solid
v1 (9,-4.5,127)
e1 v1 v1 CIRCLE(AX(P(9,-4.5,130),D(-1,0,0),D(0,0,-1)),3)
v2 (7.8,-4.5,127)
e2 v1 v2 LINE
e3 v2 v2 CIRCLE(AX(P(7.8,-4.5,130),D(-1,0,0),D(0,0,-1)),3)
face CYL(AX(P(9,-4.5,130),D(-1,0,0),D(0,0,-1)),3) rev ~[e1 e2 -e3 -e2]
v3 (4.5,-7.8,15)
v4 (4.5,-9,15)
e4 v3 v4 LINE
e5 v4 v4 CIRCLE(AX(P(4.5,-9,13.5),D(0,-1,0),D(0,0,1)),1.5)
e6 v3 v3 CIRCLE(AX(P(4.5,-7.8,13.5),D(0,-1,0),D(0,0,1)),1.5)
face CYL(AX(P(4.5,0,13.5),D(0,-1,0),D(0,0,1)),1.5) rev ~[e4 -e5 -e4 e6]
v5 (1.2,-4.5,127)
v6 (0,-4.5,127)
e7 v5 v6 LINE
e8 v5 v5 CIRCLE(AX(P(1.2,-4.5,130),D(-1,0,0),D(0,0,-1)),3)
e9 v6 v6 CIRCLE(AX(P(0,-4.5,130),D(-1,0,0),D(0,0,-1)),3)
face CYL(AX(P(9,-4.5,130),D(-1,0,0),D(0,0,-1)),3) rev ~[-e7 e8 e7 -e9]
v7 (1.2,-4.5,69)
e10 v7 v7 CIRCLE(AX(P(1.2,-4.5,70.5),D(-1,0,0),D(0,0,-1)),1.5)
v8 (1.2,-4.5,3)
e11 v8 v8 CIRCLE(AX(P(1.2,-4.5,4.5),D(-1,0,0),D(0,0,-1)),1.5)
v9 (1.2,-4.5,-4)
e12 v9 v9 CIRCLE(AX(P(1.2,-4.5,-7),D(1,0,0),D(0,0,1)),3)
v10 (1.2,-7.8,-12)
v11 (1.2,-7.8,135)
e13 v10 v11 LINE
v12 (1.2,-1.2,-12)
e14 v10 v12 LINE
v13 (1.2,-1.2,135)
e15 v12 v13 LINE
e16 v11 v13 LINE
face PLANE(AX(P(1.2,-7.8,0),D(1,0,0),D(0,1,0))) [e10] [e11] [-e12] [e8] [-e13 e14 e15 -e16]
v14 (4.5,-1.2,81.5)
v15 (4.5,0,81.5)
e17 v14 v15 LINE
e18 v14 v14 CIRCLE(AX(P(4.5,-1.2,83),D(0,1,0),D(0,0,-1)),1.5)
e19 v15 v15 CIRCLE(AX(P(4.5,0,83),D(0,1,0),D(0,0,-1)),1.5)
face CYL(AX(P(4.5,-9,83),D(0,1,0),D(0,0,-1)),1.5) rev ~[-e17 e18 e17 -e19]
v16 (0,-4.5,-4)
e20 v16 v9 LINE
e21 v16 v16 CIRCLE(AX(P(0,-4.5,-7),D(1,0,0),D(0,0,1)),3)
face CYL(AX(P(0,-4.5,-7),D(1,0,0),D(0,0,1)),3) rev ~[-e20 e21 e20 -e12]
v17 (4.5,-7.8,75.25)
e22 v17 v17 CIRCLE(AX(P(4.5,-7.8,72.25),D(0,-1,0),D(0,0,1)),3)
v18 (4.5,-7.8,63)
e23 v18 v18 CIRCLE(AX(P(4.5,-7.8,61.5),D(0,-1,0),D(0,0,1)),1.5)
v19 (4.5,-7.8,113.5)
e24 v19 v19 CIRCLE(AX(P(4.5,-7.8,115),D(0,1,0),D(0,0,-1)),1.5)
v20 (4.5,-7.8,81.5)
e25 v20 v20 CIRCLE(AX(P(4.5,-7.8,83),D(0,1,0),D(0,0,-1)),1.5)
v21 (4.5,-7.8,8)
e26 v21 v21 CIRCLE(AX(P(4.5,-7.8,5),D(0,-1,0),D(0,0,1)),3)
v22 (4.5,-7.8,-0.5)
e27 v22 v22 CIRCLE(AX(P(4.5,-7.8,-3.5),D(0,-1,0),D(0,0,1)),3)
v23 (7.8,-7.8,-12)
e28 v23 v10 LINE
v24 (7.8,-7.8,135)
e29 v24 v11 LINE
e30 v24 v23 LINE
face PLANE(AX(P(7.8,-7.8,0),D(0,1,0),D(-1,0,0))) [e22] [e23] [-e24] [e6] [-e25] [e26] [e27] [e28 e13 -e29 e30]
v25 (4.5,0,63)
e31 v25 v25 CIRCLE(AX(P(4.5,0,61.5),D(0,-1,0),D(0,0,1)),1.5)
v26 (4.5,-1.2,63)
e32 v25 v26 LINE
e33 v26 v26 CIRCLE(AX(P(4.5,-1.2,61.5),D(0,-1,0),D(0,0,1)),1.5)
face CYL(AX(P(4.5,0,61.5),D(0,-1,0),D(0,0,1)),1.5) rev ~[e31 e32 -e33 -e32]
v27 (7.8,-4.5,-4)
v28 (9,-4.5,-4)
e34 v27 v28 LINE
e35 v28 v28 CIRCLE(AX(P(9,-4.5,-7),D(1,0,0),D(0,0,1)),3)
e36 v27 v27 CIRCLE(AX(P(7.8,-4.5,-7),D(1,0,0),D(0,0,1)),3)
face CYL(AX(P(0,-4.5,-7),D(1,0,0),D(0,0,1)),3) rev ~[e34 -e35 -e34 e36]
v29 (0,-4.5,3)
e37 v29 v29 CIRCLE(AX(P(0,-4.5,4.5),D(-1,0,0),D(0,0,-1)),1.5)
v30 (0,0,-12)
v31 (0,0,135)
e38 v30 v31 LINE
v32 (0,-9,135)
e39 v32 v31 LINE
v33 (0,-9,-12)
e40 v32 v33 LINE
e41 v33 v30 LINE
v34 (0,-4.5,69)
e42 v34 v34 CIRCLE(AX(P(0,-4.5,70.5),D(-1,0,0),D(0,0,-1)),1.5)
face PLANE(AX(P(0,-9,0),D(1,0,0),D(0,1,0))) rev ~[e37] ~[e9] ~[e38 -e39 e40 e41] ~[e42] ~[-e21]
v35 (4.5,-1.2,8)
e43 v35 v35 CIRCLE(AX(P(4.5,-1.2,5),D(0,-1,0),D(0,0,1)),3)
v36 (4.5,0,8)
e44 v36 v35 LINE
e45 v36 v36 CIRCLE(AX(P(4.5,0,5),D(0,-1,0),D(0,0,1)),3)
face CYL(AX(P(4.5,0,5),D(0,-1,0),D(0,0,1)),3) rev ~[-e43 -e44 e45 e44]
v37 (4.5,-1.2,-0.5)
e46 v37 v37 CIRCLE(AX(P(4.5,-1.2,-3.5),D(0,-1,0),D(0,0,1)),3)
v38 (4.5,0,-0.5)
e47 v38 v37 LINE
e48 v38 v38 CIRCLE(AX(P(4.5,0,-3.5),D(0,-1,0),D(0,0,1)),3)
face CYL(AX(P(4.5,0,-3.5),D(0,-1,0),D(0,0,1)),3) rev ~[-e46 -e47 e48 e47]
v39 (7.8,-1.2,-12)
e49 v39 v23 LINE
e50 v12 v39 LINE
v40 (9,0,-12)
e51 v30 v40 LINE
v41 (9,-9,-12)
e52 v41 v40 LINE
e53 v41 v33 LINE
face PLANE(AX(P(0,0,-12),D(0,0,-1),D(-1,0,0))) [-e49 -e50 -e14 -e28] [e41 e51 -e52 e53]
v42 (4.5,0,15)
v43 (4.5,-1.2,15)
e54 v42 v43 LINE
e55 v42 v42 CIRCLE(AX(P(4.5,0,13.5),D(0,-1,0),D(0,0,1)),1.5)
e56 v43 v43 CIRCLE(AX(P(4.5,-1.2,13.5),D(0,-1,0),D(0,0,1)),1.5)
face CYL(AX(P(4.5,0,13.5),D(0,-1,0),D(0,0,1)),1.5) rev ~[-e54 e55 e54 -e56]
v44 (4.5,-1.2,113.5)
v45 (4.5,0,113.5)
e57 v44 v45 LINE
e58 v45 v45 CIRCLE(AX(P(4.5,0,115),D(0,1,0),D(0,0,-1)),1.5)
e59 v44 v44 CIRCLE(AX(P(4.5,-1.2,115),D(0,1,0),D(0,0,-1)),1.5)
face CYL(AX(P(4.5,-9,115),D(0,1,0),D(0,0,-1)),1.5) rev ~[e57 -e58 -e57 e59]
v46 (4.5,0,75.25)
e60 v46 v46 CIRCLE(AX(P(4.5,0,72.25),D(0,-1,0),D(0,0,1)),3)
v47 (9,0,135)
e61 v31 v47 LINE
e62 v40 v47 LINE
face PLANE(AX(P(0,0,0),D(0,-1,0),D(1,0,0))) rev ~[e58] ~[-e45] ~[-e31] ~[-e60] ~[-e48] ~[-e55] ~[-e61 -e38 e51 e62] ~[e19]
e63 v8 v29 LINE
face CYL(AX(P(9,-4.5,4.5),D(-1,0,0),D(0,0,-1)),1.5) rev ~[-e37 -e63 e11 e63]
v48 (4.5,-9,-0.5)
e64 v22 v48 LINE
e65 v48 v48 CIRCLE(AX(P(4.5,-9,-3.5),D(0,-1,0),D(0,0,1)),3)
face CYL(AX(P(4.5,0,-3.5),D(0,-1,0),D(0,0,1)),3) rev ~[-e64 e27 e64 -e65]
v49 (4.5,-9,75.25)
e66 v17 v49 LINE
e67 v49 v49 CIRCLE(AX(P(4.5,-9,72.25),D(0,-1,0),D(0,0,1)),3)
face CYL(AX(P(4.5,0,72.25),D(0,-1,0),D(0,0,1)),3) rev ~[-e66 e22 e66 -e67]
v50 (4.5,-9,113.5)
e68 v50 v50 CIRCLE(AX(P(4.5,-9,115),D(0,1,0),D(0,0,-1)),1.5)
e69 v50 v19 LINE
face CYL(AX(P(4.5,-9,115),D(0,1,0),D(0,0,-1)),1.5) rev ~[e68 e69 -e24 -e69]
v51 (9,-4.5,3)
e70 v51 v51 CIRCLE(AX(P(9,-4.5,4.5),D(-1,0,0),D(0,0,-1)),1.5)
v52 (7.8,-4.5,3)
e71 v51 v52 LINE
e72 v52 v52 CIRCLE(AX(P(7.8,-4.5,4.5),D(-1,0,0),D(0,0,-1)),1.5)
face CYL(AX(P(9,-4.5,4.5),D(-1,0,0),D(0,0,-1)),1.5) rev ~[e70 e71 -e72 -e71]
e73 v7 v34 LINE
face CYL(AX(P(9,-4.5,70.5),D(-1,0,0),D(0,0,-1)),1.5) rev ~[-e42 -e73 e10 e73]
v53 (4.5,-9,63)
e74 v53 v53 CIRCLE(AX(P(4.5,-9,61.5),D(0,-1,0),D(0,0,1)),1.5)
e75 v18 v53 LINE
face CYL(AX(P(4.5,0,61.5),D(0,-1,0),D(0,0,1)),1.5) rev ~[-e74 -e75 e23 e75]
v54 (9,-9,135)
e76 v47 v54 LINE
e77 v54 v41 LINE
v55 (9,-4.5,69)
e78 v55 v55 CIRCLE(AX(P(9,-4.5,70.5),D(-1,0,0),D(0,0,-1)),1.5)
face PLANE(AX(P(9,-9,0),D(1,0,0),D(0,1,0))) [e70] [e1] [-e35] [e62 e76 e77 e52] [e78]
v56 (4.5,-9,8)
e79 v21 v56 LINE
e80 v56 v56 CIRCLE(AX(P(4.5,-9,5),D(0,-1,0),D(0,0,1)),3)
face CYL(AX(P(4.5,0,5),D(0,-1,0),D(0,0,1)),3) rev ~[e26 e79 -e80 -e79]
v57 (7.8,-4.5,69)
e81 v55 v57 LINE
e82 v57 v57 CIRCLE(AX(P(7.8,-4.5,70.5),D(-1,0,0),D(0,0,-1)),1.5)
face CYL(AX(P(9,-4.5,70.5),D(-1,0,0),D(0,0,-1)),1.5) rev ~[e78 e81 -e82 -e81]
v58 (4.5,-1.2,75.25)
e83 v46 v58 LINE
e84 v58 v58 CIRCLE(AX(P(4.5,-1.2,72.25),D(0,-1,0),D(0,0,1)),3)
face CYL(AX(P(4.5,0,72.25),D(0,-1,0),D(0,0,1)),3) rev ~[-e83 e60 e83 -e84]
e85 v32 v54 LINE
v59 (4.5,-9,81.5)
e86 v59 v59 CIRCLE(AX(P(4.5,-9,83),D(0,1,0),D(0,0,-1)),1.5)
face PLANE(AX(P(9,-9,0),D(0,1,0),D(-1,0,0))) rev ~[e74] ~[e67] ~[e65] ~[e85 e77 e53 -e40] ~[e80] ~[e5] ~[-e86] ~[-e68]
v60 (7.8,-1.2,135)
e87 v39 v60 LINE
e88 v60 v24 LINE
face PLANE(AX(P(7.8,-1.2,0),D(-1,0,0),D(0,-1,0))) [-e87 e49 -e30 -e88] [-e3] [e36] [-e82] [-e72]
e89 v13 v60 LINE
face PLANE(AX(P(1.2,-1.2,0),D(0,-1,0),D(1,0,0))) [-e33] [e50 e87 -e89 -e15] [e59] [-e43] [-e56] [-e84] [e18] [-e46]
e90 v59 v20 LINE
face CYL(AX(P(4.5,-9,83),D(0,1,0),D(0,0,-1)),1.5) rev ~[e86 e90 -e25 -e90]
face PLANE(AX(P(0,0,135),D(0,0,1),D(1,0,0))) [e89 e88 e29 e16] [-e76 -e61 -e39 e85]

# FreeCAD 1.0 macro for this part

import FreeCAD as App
import Part
import Sketcher
Q = App.Units.Quantity

doc = App.newDocument("Part")
body = doc.addObject("PartDesign::Body", "Body")

sketch1 = body.newObject("Sketcher::SketchObject", "Sketch")
sketch1.AttachmentSupport = (doc.getObject("XY_Plane"), [""])
sketch1.MapMode = "FlatFace"
sketch1.addGeometry([
    Part.LineSegment(App.Vector(9, 0, 0), App.Vector(0, 0, 0)),
    Part.LineSegment(App.Vector(0, 0, 0), App.Vector(0, -9, 0)),
    Part.LineSegment(App.Vector(0, -9, 0), App.Vector(9, -9, 0)),
    Part.LineSegment(App.Vector(9, -9, 0), App.Vector(9, 0, 0)),
    Part.LineSegment(App.Vector(1, -8, 0), App.Vector(1, -1, 0)),
    Part.LineSegment(App.Vector(1, -1, 0), App.Vector(8, -1, 0)),
    Part.LineSegment(App.Vector(8, -1, 0), App.Vector(8, -8, 0)),
    Part.LineSegment(App.Vector(8, -8, 0), App.Vector(1, -8, 0)),
], False)
sketch1.addConstraint([
    Sketcher.Constraint("Coincident", 0, 2, 1, 1),
    Sketcher.Constraint("Coincident", 1, 2, 2, 1),
    Sketcher.Constraint("Coincident", 2, 2, 3, 1),
    Sketcher.Constraint("Coincident", 3, 2, 0, 1),
    Sketcher.Constraint("Coincident", 4, 2, 5, 1),
    Sketcher.Constraint("Coincident", 5, 2, 6, 1),
    Sketcher.Constraint("Coincident", 6, 2, 7, 1),
    Sketcher.Constraint("Coincident", 7, 2, 4, 1),
    Sketcher.Constraint("Horizontal", 0),
    Sketcher.Constraint("Vertical", 1),
    Sketcher.Constraint("Horizontal", 2),
    Sketcher.Constraint("Vertical", 3),
    Sketcher.Constraint("Vertical", 4),
    Sketcher.Constraint("Horizontal", 5),
    Sketcher.Constraint("Vertical", 6),
    Sketcher.Constraint("Horizontal", 7),
    Sketcher.Constraint("Coincident", 0, 2, -1, 1),
    Sketcher.Constraint("Equal", 2, 1),
    Sketcher.Constraint("Equal", 7, 4),
    Sketcher.Constraint("DistanceX", 0, 2, 0, 1, Q("9 mm")),
    Sketcher.Constraint("DistanceX", 5, 1, 5, 2, Q("6.6 mm")),
    Sketcher.Constraint("DistanceX", -1, 1, 4, 2, Q("1.2 mm")),
    Sketcher.Constraint("DistanceY", 4, 2, -1, 1, Q("1.2 mm")),
])
pad1 = body.newObject("PartDesign::Pad", "Pad")
pad1.Profile = sketch1
pad1.Length = 75

sketch2 = body.newObject("Sketcher::SketchObject", "Sketch001")
sketch2.AttachmentSupport = (doc.getObject("YZ_Plane"), [""])
sketch2.MapMode = "FlatFace"
sketch2.AttachmentOffset = App.Placement(App.Vector(0, 0, 9), App.Rotation())
sketch2.addGeometry([
    Part.Circle(App.Vector(-4.5, 70.5, 0), App.Vector(0, 0, 1), 1.5),
    Part.Circle(App.Vector(-4.5, 4.5, 0), App.Vector(0, 0, 1), 1.5),
], False)
sketch2.addConstraint([
    Sketcher.Constraint("Equal", 0, 1),
    Sketcher.Constraint("Vertical", 0, 3, 1, 3),
    Sketcher.Constraint("Diameter", 0, Q("3 mm")),
    Sketcher.Constraint("DistanceY", 1, 3, 0, 3, Q("66 mm")),
    Sketcher.Constraint("DistanceX", 0, 3, -1, 1, Q("4.5 mm")),
    Sketcher.Constraint("DistanceY", -1, 1, 0, 3, Q("70.5 mm")),
])
doc.recompute()
hole = body.newObject("PartDesign::Hole", "Hole")
hole.Profile = sketch2
hole.ThreadType = "None"
hole.Diameter = 3
hole.DepthType = "ThroughAll"

sketch3 = body.newObject("Sketcher::SketchObject", "Sketch002")
sketch3.AttachmentSupport = (doc.getObject("XZ_Plane"), [""])
sketch3.MapMode = "FlatFace"
sketch3.addGeometry([
    Part.Circle(App.Vector(4.5, 61.5, 0), App.Vector(0, 0, 1), 1.5),
    Part.Circle(App.Vector(4.5, 13.5, 0), App.Vector(0, 0, 1), 1.5),
], False)
sketch3.addConstraint([
    Sketcher.Constraint("Equal", 0, 1),
    Sketcher.Constraint("Vertical", 0, 3, 1, 3),
    Sketcher.Constraint("Diameter", 0, Q("3 mm")),
    Sketcher.Constraint("DistanceY", 1, 3, 0, 3, Q("48 mm")),
    Sketcher.Constraint("DistanceX", -1, 1, 0, 3, Q("4.5 mm")),
    Sketcher.Constraint("DistanceY", -1, 1, 0, 3, Q("61.5 mm")),
])
doc.recompute()
hole2 = body.newObject("PartDesign::Hole", "Hole001")
hole2.Profile = sketch3
hole2.ThreadType = "None"
hole2.Diameter = 3
hole2.DepthType = "ThroughAll"
hole2.Reversed = True

sketch4 = body.newObject("Sketcher::SketchObject", "Sketch003")
sketch4.AttachmentSupport = (doc.getObject("XY_Plane"), [""])
sketch4.MapMode = "FlatFace"
sketch4.AttachmentOffset = App.Placement(App.Vector(0, 0, 75), App.Rotation())
sketch4.addGeometry([
    Part.LineSegment(App.Vector(0, 0, 0), App.Vector(0, -9, 0)),
    Part.LineSegment(App.Vector(0, -9, 0), App.Vector(9, -9, 0)),
    Part.LineSegment(App.Vector(9, -9, 0), App.Vector(9, 0, 0)),
    Part.LineSegment(App.Vector(9, 0, 0), App.Vector(0, 0, 0)),
    Part.LineSegment(App.Vector(1, -8, 0), App.Vector(1, -1, 0)),
    Part.LineSegment(App.Vector(1, -1, 0), App.Vector(8, -1, 0)),
    Part.LineSegment(App.Vector(8, -1, 0), App.Vector(8, -8, 0)),
    Part.LineSegment(App.Vector(8, -8, 0), App.Vector(1, -8, 0)),
], False)
sketch4.addConstraint([
    Sketcher.Constraint("Coincident", 0, 2, 1, 1),
    Sketcher.Constraint("Coincident", 1, 2, 2, 1),
    Sketcher.Constraint("Coincident", 2, 2, 3, 1),
    Sketcher.Constraint("Coincident", 3, 2, 0, 1),
    Sketcher.Constraint("Coincident", 4, 2, 5, 1),
    Sketcher.Constraint("Coincident", 5, 2, 6, 1),
    Sketcher.Constraint("Coincident", 6, 2, 7, 1),
    Sketcher.Constraint("Coincident", 7, 2, 4, 1),
    Sketcher.Constraint("Vertical", 0),
    Sketcher.Constraint("Horizontal", 1),
    Sketcher.Constraint("Vertical", 2),
    Sketcher.Constraint("Horizontal", 3),
    Sketcher.Constraint("Vertical", 4),
    Sketcher.Constraint("Horizontal", 5),
    Sketcher.Constraint("Vertical", 6),
    Sketcher.Constraint("Horizontal", 7),
    Sketcher.Constraint("Coincident", 3, 2, -1, 1),
    Sketcher.Constraint("Equal", 3, 0),
    Sketcher.Constraint("Equal", 7, 4),
    Sketcher.Constraint("DistanceX", 1, 1, 1, 2, Q("9 mm")),
    Sketcher.Constraint("DistanceX", 5, 1, 5, 2, Q("6.6 mm")),
    Sketcher.Constraint("DistanceX", -1, 1, 4, 2, Q("1.2 mm")),
    Sketcher.Constraint("DistanceY", 4, 2, -1, 1, Q("1.2 mm")),
])
pad2 = body.newObject("PartDesign::Pad", "Pad001")
pad2.Profile = sketch4
pad2.Length = 60

sketch5 = body.newObject("Sketcher::SketchObject", "Sketch004")
sketch5.AttachmentSupport = (doc.getObject("YZ_Plane"), [""])
sketch5.MapMode = "FlatFace"
sketch5.AttachmentOffset = App.Placement(App.Vector(0, 0, 9), App.Rotation())
sketch5.addGeometry(Part.Circle(App.Vector(-4.5, 130, 0), App.Vector(0, 0, 1), 3), False)
sketch5.addConstraint([
    Sketcher.Constraint("Diameter", 0, Q("6 mm")),
    Sketcher.Constraint("DistanceY", -1, 1, 0, 3, Q("130 mm")),
    Sketcher.Constraint("DistanceX", 0, 3, -1, 1, Q("4.5 mm")),
])
doc.recompute()
hole3 = body.newObject("PartDesign::Hole", "Hole002")
hole3.Profile = sketch5
hole3.ThreadType = "None"
hole3.Diameter = 6
hole3.DepthType = "ThroughAll"

sketch6 = body.newObject("Sketcher::SketchObject", "Sketch005")
sketch6.AttachmentSupport = (doc.getObject("XY_Plane"), [""])
sketch6.MapMode = "FlatFace"
sketch6.addGeometry([
    Part.LineSegment(App.Vector(9, 0, 0), App.Vector(9, -9, 0)),
    Part.LineSegment(App.Vector(9, -9, 0), App.Vector(0, -9, 0)),
    Part.LineSegment(App.Vector(0, -9, 0), App.Vector(0, 0, 0)),
    Part.LineSegment(App.Vector(0, 0, 0), App.Vector(9, 0, 0)),
    Part.LineSegment(App.Vector(1, -8, 0), App.Vector(8, -8, 0)),
    Part.LineSegment(App.Vector(8, -8, 0), App.Vector(8, -1, 0)),
    Part.LineSegment(App.Vector(8, -1, 0), App.Vector(1, -1, 0)),
    Part.LineSegment(App.Vector(1, -1, 0), App.Vector(1, -8, 0)),
], False)
sketch6.addConstraint([
    Sketcher.Constraint("Coincident", 0, 2, 1, 1),
    Sketcher.Constraint("Coincident", 1, 2, 2, 1),
    Sketcher.Constraint("Coincident", 2, 2, 3, 1),
    Sketcher.Constraint("Coincident", 3, 2, 0, 1),
    Sketcher.Constraint("Coincident", 4, 2, 5, 1),
    Sketcher.Constraint("Coincident", 5, 2, 6, 1),
    Sketcher.Constraint("Coincident", 6, 2, 7, 1),
    Sketcher.Constraint("Coincident", 7, 2, 4, 1),
    Sketcher.Constraint("Vertical", 0),
    Sketcher.Constraint("Horizontal", 1),
    Sketcher.Constraint("Vertical", 2),
    Sketcher.Constraint("Horizontal", 3),
    Sketcher.Constraint("Horizontal", 4),
    Sketcher.Constraint("Vertical", 5),
    Sketcher.Constraint("Horizontal", 6),
    Sketcher.Constraint("Vertical", 7),
    Sketcher.Constraint("Coincident", 2, 2, -1, 1),
    Sketcher.Constraint("Equal", 3, 0),
    Sketcher.Constraint("Equal", 6, 5),
    Sketcher.Constraint("DistanceX", 1, 2, 1, 1, Q("9 mm")),
    Sketcher.Constraint("DistanceX", 4, 1, 4, 2, Q("6.6 mm")),
    Sketcher.Constraint("DistanceX", -1, 1, 4, 2, Q("7.8 mm")),
    Sketcher.Constraint("DistanceY", 4, 2, -1, 1, Q("7.8 mm")),
])
pad3 = body.newObject("PartDesign::Pad", "Pad002")
pad3.Profile = sketch6
pad3.Length = 12
pad3.Reversed = True

sketch7 = body.newObject("Sketcher::SketchObject", "Sketch006")
sketch7.AttachmentSupport = (doc.getObject("YZ_Plane"), [""])
sketch7.MapMode = "FlatFace"
sketch7.addGeometry(Part.Circle(App.Vector(-4.5, -7, 0), App.Vector(0, 0, 1), 3), False)
sketch7.addConstraint([
    Sketcher.Constraint("Diameter", 0, Q("6 mm")),
    Sketcher.Constraint("DistanceY", 0, 3, -1, 1, Q("7 mm")),
    Sketcher.Constraint("DistanceX", 0, 3, -1, 1, Q("4.5 mm")),
])
doc.recompute()
hole4 = body.newObject("PartDesign::Hole", "Hole003")
hole4.Profile = sketch7
hole4.ThreadType = "None"
hole4.Diameter = 6
hole4.DepthType = "ThroughAll"
hole4.Reversed = True

sketch8 = body.newObject("Sketcher::SketchObject", "Sketch007")
sketch8.AttachmentSupport = (doc.getObject("XZ_Plane"), [""])
sketch8.MapMode = "FlatFace"
sketch8.AttachmentOffset = App.Placement(App.Vector(0, 0, 9), App.Rotation())
sketch8.addGeometry([
    Part.Circle(App.Vector(4.5, 83, 0), App.Vector(0, 0, 1), 1.5),
    Part.Circle(App.Vector(4.5, 115, 0), App.Vector(0, 0, 1), 1.5),
], False)
sketch8.addConstraint([
    Sketcher.Constraint("Equal", 0, 1),
    Sketcher.Constraint("Vertical", 0, 3, 1, 3),
    Sketcher.Constraint("Diameter", 0, Q("3 mm")),
    Sketcher.Constraint("DistanceY", -1, 1, 0, 3, Q("83 mm")),
    Sketcher.Constraint("DistanceY", -1, 1, 1, 3, Q("115 mm")),
    Sketcher.Constraint("DistanceX", -1, 1, 0, 3, Q("4.5 mm")),
])
doc.recompute()
hole5 = body.newObject("PartDesign::Hole", "Hole004")
hole5.Profile = sketch8
hole5.ThreadType = "None"
hole5.Diameter = 3
hole5.DepthType = "ThroughAll"

sketch9 = body.newObject("Sketcher::SketchObject", "Sketch008")
sketch9.AttachmentSupport = (doc.getObject("XZ_Plane"), [""])
sketch9.MapMode = "FlatFace"
sketch9.addGeometry([
    Part.Circle(App.Vector(4.5, 5, 0), App.Vector(0, 0, 1), 3),
    Part.Circle(App.Vector(4.5, -3.5, 0), App.Vector(0, 0, 1), 3),
], False)
sketch9.addConstraint([
    Sketcher.Constraint("Equal", 0, 1),
    Sketcher.Constraint("Vertical", 0, 3, 1, 3),
    Sketcher.Constraint("Diameter", 0, Q("6 mm")),
    Sketcher.Constraint("DistanceY", -1, 1, 0, 3, Q("5 mm")),
    Sketcher.Constraint("DistanceX", -1, 1, 0, 3, Q("4.5 mm")),
    Sketcher.Constraint("DistanceY", 1, 3, -1, 1, Q("3.5 mm")),
])
doc.recompute()
hole6 = body.newObject("PartDesign::Hole", "Hole005")
hole6.Profile = sketch9
hole6.ThreadType = "None"
hole6.Diameter = 6
hole6.DepthType = "ThroughAll"
hole6.Reversed = True

sketch10 = body.newObject("Sketcher::SketchObject", "Sketch009")
sketch10.AttachmentSupport = (doc.getObject("XZ_Plane"), [""])
sketch10.MapMode = "FlatFace"
sketch10.addGeometry(Part.Circle(App.Vector(4.5, 72.2, 0), App.Vector(0, 0, 1), 3), False)
sketch10.addConstraint([
    Sketcher.Constraint("Diameter", 0, Q("6 mm")),
    Sketcher.Constraint("DistanceX", -1, 1, 0, 3, Q("4.5 mm")),
    Sketcher.Constraint("DistanceY", -1, 1, 0, 3, Q("72.25 mm")),
])
doc.recompute()
hole7 = body.newObject("PartDesign::Hole", "Hole006")
hole7.Profile = sketch10
hole7.ThreadType = "None"
hole7.Diameter = 6
hole7.DepthType = "ThroughAll"
hole7.Reversed = True

doc.recompute()
